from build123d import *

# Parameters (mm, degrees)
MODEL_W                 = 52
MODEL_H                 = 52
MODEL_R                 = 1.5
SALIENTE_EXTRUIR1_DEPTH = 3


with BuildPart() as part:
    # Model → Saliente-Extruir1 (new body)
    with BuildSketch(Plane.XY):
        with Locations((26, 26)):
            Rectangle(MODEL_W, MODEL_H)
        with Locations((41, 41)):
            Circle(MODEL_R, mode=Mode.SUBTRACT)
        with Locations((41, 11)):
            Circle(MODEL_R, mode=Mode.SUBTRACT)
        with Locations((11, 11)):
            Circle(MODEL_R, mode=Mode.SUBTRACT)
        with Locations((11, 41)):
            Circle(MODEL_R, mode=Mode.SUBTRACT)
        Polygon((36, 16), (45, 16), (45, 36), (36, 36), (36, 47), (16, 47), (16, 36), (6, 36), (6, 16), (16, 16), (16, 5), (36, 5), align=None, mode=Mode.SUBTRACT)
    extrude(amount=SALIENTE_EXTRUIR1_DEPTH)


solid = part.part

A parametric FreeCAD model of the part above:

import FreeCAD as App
import Part
import Sketcher

V = App.Vector
Q = App.Units.Quantity

doc = App.newDocument("Part")
body = doc.addObject("PartDesign::Body", "Body")

sketch1 = body.newObject("Sketcher::SketchObject", "Sketch")
sketch1.AttachmentSupport = (doc.getObject("XY_Plane"), [""])
sketch1.MapMode = "FlatFace"
sketch1.addGeometry([
    Part.LineSegment(V(0, 52, 0), V(0, 0, 0)),
    Part.LineSegment(V(0, 0, 0), V(52, 0, 0)),
    Part.LineSegment(V(52, 0, 0), V(52, 52, 0)),
    Part.LineSegment(V(52, 52, 0), V(0, 52, 0)),
    Part.Circle(V(11, 11, 0), V(0, 0, 1), 1.5),
    Part.Circle(V(41, 11, 0), V(0, 0, 1), 1.5),
    Part.Circle(V(11, 41, 0), V(0, 0, 1), 1.5),
    Part.LineSegment(V(45, 16, 0), V(36, 16, 0)),
    Part.LineSegment(V(36, 16, 0), V(36, 5, 0)),
    Part.LineSegment(V(36, 5, 0), V(16, 5, 0)),
    Part.LineSegment(V(16, 5, 0), V(16, 16, 0)),
    Part.LineSegment(V(16, 16, 0), V(6, 16, 0)),
    Part.LineSegment(V(6, 16, 0), V(6, 36, 0)),
    Part.LineSegment(V(6, 36, 0), V(16, 36, 0)),
    Part.LineSegment(V(16, 36, 0), V(16, 47, 0)),
    Part.LineSegment(V(16, 47, 0), V(36, 47, 0)),
    Part.LineSegment(V(36, 47, 0), V(36, 36, 0)),
    Part.LineSegment(V(36, 36, 0), V(45, 36, 0)),
    Part.LineSegment(V(45, 36, 0), V(45, 16, 0)),
    Part.Circle(V(41, 41, 0), V(0, 0, 1), 1.5),
], False)
sketch1.addConstraint([
    Sketcher.Constraint("Coincident", 0, 2, 1, 1),
    Sketcher.Constraint("Coincident", 1, 2, 2, 1),
    Sketcher.Constraint("Coincident", 2, 2, 3, 1),
    Sketcher.Constraint("Coincident", 3, 2, 0, 1),
    Sketcher.Constraint("Coincident", 7, 2, 8, 1),
    Sketcher.Constraint("Coincident", 8, 2, 9, 1),
    Sketcher.Constraint("Coincident", 9, 2, 10, 1),
    Sketcher.Constraint("Coincident", 10, 2, 11, 1),
    Sketcher.Constraint("Coincident", 11, 2, 12, 1),
    Sketcher.Constraint("Coincident", 12, 2, 13, 1),
    Sketcher.Constraint("Coincident", 13, 2, 14, 1),
    Sketcher.Constraint("Coincident", 14, 2, 15, 1),
    Sketcher.Constraint("Coincident", 15, 2, 16, 1),
    Sketcher.Constraint("Coincident", 16, 2, 17, 1),
    Sketcher.Constraint("Coincident", 17, 2, 18, 1),
    Sketcher.Constraint("Coincident", 18, 2, 7, 1),
    Sketcher.Constraint("Vertical", 0),
    Sketcher.Constraint("Horizontal", 1),
    Sketcher.Constraint("Vertical", 2),
    Sketcher.Constraint("Horizontal", 3),
    Sketcher.Constraint("Horizontal", 7),
    Sketcher.Constraint("Vertical", 8),
    Sketcher.Constraint("Horizontal", 9),
    Sketcher.Constraint("Vertical", 10),
    Sketcher.Constraint("Horizontal", 11),
    Sketcher.Constraint("Vertical", 12),
    Sketcher.Constraint("Horizontal", 13),
    Sketcher.Constraint("Vertical", 14),
    Sketcher.Constraint("Horizontal", 15),
    Sketcher.Constraint("Vertical", 16),
    Sketcher.Constraint("Horizontal", 17),
    Sketcher.Constraint("Vertical", 18),
    Sketcher.Constraint("Coincident", 0, 2, -1, 1),
    Sketcher.Constraint("Equal", 4, 5),
    Sketcher.Constraint("Equal", 5, 6),
    Sketcher.Constraint("Equal", 6, 19),
    Sketcher.Constraint("Horizontal", 4, 3, 5, 3),
    Sketcher.Constraint("Horizontal", 6, 3, 19, 3),
    Sketcher.Constraint("Horizontal", 7, 2, 10, 2),
    Sketcher.Constraint("Horizontal", 13, 2, 16, 2),
    Sketcher.Constraint("Vertical", 4, 3, 6, 3),
    Sketcher.Constraint("Vertical", 5, 3, 19, 3),
    Sketcher.Constraint("Vertical", 10, 2, 13, 2),
    Sketcher.Constraint("Vertical", 8, 2, 15, 2),
    Sketcher.Constraint("Equal", 3, 0),
    Sketcher.Constraint("Equal", 15, 12),
    Sketcher.Constraint("Equal", 10, 14),
    Sketcher.Constraint("Diameter", 4, Q("3 mm")),
    Sketcher.Constraint("DistanceX", 1, 1, 1, 2, Q("52 mm")),
    Sketcher.Constraint("DistanceX", 7, 2, 7, 1, Q("9 mm")),
    Sketcher.Constraint("DistanceX", 9, 2, 9, 1, Q("20 mm")),
    Sketcher.Constraint("DistanceX", 11, 2, 11, 1, Q("10 mm")),
    Sketcher.Constraint("DistanceY", 8, 2, 8, 1, Q("11 mm")),
    Sketcher.Constraint("DistanceX", -1, 1, 4, 3, Q("11 mm")),
    Sketcher.Constraint("DistanceY", -1, 1, 4, 3, Q("11 mm")),
    Sketcher.Constraint("DistanceX", -1, 1, 5, 3, Q("41 mm")),
    Sketcher.Constraint("DistanceY", -1, 1, 6, 3, Q("41 mm")),
    Sketcher.Constraint("DistanceX", -1, 1, 7, 2, Q("36 mm")),
    Sketcher.Constraint("DistanceY", -1, 1, 7, 2, Q("16 mm")),
])
pad1 = body.newObject("PartDesign::Pad", "Pad")
pad1.Profile = sketch1
pad1.Length = 3

doc.recompute()
